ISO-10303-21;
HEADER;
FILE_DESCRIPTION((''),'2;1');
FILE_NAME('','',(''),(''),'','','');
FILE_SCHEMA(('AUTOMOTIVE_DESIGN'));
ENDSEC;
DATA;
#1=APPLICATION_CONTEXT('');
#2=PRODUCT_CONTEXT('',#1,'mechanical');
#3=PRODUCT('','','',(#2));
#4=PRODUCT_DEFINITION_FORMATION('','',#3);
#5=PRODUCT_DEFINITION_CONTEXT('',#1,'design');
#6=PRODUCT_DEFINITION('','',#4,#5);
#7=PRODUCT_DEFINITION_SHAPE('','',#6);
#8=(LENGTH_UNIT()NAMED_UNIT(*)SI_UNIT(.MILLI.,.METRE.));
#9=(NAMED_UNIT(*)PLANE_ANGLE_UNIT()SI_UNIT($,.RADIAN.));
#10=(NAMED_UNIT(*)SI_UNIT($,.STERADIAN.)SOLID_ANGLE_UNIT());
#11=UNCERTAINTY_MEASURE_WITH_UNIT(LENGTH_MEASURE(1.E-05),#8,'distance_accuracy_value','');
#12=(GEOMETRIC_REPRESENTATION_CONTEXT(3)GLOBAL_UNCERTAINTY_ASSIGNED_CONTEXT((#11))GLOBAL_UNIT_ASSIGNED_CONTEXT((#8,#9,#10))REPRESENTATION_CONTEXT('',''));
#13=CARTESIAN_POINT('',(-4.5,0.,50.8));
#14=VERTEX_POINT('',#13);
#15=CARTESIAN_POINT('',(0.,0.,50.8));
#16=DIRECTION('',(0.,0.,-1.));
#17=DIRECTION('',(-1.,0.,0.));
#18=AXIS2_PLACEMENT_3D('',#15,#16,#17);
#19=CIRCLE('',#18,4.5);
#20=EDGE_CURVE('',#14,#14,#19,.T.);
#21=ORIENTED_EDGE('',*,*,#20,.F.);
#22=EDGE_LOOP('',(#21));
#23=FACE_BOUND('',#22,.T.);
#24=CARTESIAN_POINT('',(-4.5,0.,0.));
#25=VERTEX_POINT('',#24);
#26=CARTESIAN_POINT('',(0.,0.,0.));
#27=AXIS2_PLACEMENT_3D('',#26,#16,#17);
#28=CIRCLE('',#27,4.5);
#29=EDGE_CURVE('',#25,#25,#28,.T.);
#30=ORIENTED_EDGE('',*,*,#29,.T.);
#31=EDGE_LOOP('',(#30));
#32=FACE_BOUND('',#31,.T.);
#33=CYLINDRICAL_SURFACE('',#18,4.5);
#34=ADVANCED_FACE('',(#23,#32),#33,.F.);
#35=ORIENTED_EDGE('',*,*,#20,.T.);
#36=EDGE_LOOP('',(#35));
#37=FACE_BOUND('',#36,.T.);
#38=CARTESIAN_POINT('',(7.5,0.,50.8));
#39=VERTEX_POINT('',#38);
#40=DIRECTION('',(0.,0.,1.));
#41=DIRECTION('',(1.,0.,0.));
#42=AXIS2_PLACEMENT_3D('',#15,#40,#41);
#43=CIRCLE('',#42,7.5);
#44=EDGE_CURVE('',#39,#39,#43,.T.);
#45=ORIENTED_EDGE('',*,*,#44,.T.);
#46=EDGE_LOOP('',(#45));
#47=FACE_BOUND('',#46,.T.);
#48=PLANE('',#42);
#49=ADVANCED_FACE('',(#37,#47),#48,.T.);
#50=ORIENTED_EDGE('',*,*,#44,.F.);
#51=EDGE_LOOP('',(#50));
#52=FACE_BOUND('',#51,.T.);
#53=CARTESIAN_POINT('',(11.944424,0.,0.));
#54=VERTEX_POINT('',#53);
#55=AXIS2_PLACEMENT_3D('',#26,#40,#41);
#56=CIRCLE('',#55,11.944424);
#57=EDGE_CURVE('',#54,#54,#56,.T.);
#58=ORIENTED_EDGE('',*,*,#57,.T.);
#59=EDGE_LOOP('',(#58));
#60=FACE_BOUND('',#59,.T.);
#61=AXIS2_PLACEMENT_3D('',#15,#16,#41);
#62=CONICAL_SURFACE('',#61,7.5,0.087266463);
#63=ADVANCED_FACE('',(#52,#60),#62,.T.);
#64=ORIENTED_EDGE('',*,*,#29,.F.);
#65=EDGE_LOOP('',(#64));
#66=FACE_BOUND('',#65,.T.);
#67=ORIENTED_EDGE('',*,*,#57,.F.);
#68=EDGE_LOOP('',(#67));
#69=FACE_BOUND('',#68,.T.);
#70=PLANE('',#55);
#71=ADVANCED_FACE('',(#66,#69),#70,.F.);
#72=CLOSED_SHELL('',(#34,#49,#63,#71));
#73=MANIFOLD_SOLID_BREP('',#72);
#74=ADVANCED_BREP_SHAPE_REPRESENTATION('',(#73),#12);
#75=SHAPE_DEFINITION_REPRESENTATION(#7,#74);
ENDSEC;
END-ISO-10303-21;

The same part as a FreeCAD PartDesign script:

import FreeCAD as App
import Part
import Sketcher
from FreeCAD import Vector


def faces_at(feature, points):
    """Names of the faces that lie closest to the given points."""
    faces = feature.Shape.Faces
    near = lambda p: min(range(len(faces)), key=lambda i: faces[i].distToShape(Part.Vertex(*p))[0])
    return sorted({f"Face{near(p) + 1}" for p in points})

doc = App.newDocument("Part")
body = doc.addObject("PartDesign::Body", "Body")

# Sketch on XY plane
sketch1 = body.newObject("Sketcher::SketchObject", "Sketch")
sketch1.AttachmentSupport = (doc.getObject("XY_Plane"), [""])
sketch1.MapMode = "FlatFace"
sketch1.addGeometry(Part.Circle(Vector(0, 0, 0), Vector(0, 0, 1), 7.5), False)
sketch1.addConstraint(Sketcher.Constraint("Coincident", 0, 3, -1, 1))
sketch1.addConstraint(Sketcher.Constraint("Diameter", 0, 15.0))
pad1 = body.newObject("PartDesign::Pad", "Pad")
pad1.Profile = sketch1
pad1.Length = 50.8
doc.recompute()

datumplane = body.newObject("PartDesign::Plane", "DatumPlane")
datumplane.AttachmentSupport = (doc.getObject("XY_Plane"), [""])
datumplane.MapMode = "FlatFace"
datumplane.AttachmentOffset = App.Placement(Vector(0, 0, 50.8), App.Rotation())
draft = body.newObject("PartDesign::Draft", "Draft")
draft.Base = (pad1, faces_at(pad1, [(-7.5, 0, 25.4)]))
draft.NeutralPlane = (datumplane, [""])
draft.Angle = 5
draft.Reversed = False

# Sketch on XY plane
sketch2 = body.newObject("Sketcher::SketchObject", "Sketch001")
sketch2.AttachmentSupport = (doc.getObject("XY_Plane"), [""])
sketch2.MapMode = "FlatFace"
sketch2.addGeometry(Part.Circle(Vector(0, 0, 0), Vector(0, 0, 1), 4.5), False)
sketch2.addConstraint(Sketcher.Constraint("Coincident", 0, 3, -1, 1))
sketch2.addConstraint(Sketcher.Constraint("Diameter", 0, 9.0))
pocket1 = body.newObject("PartDesign::Pocket", "Pocket")
pocket1.Profile = sketch2
pocket1.Type = "ThroughAll"
pocket1.Reversed = True

doc.recompute()
